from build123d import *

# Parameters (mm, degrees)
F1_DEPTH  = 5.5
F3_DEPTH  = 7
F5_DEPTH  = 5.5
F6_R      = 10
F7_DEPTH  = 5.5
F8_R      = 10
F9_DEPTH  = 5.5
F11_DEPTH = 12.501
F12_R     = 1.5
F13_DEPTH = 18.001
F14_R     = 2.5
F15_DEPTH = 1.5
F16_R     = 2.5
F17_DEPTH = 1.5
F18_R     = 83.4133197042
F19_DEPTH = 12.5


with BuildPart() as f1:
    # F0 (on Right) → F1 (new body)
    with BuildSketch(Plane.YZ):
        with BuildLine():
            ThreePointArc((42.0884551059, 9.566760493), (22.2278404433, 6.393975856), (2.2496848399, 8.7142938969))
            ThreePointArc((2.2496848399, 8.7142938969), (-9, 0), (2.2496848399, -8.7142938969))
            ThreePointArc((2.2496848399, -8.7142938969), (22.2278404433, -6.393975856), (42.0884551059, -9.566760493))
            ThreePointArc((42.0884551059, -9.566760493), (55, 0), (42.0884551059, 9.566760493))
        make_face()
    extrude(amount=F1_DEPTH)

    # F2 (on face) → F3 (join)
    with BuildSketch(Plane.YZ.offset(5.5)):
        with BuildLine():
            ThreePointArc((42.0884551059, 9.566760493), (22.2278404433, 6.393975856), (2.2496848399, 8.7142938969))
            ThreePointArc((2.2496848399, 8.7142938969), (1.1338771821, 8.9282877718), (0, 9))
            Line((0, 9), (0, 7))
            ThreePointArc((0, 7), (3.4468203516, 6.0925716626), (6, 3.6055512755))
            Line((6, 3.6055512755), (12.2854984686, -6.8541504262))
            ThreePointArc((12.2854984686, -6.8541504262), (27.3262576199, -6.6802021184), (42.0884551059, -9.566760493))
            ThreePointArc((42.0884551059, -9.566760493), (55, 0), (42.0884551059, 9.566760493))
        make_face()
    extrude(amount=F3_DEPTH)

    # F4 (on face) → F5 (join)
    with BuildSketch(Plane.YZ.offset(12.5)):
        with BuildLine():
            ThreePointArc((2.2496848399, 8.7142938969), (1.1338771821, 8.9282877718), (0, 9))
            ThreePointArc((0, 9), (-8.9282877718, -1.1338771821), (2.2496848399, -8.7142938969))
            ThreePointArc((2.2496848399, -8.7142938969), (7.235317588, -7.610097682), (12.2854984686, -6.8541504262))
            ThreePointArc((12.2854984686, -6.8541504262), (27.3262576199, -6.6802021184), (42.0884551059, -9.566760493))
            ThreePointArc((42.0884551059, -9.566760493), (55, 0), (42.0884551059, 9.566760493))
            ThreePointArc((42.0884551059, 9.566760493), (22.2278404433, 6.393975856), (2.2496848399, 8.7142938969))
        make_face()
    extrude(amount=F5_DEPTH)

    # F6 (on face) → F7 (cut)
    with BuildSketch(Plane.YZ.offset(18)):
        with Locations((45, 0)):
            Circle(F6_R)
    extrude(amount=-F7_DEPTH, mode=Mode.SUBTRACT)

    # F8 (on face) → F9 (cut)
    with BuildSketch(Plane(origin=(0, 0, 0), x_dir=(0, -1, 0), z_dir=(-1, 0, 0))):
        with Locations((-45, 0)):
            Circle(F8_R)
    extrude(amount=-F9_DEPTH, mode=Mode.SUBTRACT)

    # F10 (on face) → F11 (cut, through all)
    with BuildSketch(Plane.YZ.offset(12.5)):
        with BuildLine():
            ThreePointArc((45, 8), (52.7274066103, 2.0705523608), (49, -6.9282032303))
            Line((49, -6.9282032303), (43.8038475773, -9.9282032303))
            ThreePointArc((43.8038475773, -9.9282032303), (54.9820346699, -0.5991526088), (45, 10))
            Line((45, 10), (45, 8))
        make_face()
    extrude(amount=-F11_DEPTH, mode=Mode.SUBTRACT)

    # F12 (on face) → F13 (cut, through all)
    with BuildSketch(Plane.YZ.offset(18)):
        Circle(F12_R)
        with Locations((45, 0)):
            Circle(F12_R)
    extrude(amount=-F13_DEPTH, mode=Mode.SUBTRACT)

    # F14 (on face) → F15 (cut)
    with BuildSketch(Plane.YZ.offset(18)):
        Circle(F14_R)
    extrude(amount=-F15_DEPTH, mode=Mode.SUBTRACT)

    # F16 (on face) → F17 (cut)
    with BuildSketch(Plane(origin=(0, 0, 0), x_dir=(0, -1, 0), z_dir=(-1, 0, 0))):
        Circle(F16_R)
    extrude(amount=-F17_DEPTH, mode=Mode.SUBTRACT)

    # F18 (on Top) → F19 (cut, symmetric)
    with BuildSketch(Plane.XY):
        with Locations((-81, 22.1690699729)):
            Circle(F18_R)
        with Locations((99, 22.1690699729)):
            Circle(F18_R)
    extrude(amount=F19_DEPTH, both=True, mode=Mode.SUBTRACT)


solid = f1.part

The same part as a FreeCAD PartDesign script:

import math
import FreeCAD as App
import Part
import Sketcher
Q = App.Units.Quantity

doc = App.newDocument("Part")
body = doc.addObject("PartDesign::Body", "Body")

sketch1 = body.newObject("Sketcher::SketchObject", "Sketch")
sketch1.AttachmentSupport = (doc.getObject("YZ_Plane"), [""])
sketch1.MapMode = "FlatFace"
sketch1.addGeometry(Part.ArcOfCircle(Part.Circle(App.Vector(21, 80, 0), App.Vector(0, 0, 1), 74), math.radians(-104), math.radians(-73)), False)
sketch1.addGeometry(Part.ArcOfCircle(Part.Circle(App.Vector(0, 0, 0), App.Vector(0, 0, 1), 9), math.radians(76), math.radians(284)), False)
sketch1.addGeometry(Part.ArcOfCircle(Part.Circle(App.Vector(21, -80, 0), App.Vector(0, 0, 1), 74), math.radians(73), math.radians(104)), False)
sketch1.addGeometry(Part.ArcOfCircle(Part.Circle(App.Vector(45, 0, 0), App.Vector(0, 0, 1), 10), math.radians(-107), math.radians(107)), False)
sketch1.addConstraint(Sketcher.Constraint("Tangent", 0, 1, 1, 1))
sketch1.addConstraint(Sketcher.Constraint("Tangent", 1, 2, 2, 2))
sketch1.addConstraint(Sketcher.Constraint("Tangent", 2, 1, 3, 1))
sketch1.addConstraint(Sketcher.Constraint("Tangent", 3, 2, 0, 2))
sketch1.addConstraint(Sketcher.Constraint("Coincident", 1, 3, -1, 1))
sketch1.addConstraint(Sketcher.Constraint("Equal", 0, 2))
sketch1.addConstraint(Sketcher.Constraint("PointOnObject", 3, 3, -1))
sketch1.addConstraint(Sketcher.Constraint("Radius", 1, Q("9 mm")))
sketch1.addConstraint(Sketcher.Constraint("Radius", 3, Q("10 mm")))
sketch1.addConstraint(Sketcher.Constraint("DistanceY", -1, 1, 0, 3, Q("80 mm")))
sketch1.addConstraint(Sketcher.Constraint("DistanceX", -1, 1, 3, 3, Q("45 mm")))
pad1 = body.newObject("PartDesign::Pad", "Pad")
pad1.Profile = sketch1
pad1.Length = 5.5

sketch2 = body.newObject("Sketcher::SketchObject", "Sketch001")
sketch2.AttachmentSupport = (doc.getObject("YZ_Plane"), [""])
sketch2.MapMode = "FlatFace"
sketch2.AttachmentOffset = App.Placement(App.Vector(0, 0, 5.5), App.Rotation())
sketch2.addGeometry(Part.ArcOfCircle(Part.Circle(App.Vector(20.7, 80, 0), App.Vector(0, 0, 1), 73.6), math.radians(-104), math.radians(-73)), False)
sketch2.addGeometry(Part.ArcOfCircle(Part.Circle(App.Vector(0, 0, 0), App.Vector(0, 0, 1), 9), math.radians(75.52), math.radians(90)), False)
sketch2.addGeometry(Part.LineSegment(App.Vector(0, 9, 0), App.Vector(0, 7, 0)), False)
sketch2.addGeometry(Part.ArcOfCircle(Part.Circle(App.Vector(0, 0, 0), App.Vector(0, 0, 1), 7), math.radians(31), math.radians(90)), False)
sketch2.addGeometry(Part.LineSegment(App.Vector(6, 3.6, 0), App.Vector(12.3, -6.9, 0)), False)
sketch2.addGeometry(Part.ArcOfCircle(Part.Circle(App.Vector(20.7, -80, 0), App.Vector(0, 0, 1), 73.6), math.radians(73), math.radians(97)), False)
sketch2.addGeometry(Part.ArcOfCircle(Part.Circle(App.Vector(45, 0, 0), App.Vector(0, 0, 1), 10), math.radians(-107), math.radians(107)), False)
sketch2.addConstraint(Sketcher.Constraint("Tangent", 0, 1, 1, 1))
sketch2.addConstraint(Sketcher.Constraint("Coincident", 1, 2, 2, 1))
sketch2.addConstraint(Sketcher.Constraint("Coincident", 2, 2, 3, 2))
sketch2.addConstraint(Sketcher.Constraint("Tangent", 3, 1, 4, 1))
sketch2.addConstraint(Sketcher.Constraint("Coincident", 4, 2, 5, 2))
sketch2.addConstraint(Sketcher.Constraint("Tangent", 5, 1, 6, 1))
sketch2.addConstraint(Sketcher.Constraint("Tangent", 6, 2, 0, 2))
sketch2.addConstraint(Sketcher.Constraint("Vertical", 2))
sketch2.addConstraint(Sketcher.Constraint("Coincident", 1, 3, -1, 1))
sketch2.addConstraint(Sketcher.Constraint("Coincident", 3, 3, -1, 1))
sketch2.addConstraint(Sketcher.Constraint("Equal", 0, 5))
sketch2.addConstraint(Sketcher.Constraint("Symmetric", 0, 3, 5, 3, -1))
sketch2.addConstraint(Sketcher.Constraint("PointOnObject", 1, 2, -2))
sketch2.addConstraint(Sketcher.Constraint("Radius", 1, Q("9 mm")))
sketch2.addConstraint(Sketcher.Constraint("Radius", 3, Q("7 mm")))
sketch2.addConstraint(Sketcher.Constraint("Radius", 6, Q("10 mm")))
sketch2.addConstraint(Sketcher.Constraint("DistanceY", -1, 1, 0, 3, Q("80 mm")))
sketch2.addConstraint(Sketcher.Constraint("DistanceX", -1, 1, 6, 3, Q("45 mm")))
sketch2.addConstraint(Sketcher.Constraint("DistanceX", -1, 1, 3, 1, Q("6 mm")))
pad2 = body.newObject("PartDesign::Pad", "Pad001")
pad2.Profile = sketch2
pad2.Length = 7

sketch3 = body.newObject("Sketcher::SketchObject", "Sketch002")
sketch3.AttachmentSupport = (doc.getObject("YZ_Plane"), [""])
sketch3.MapMode = "FlatFace"
sketch3.AttachmentOffset = App.Placement(App.Vector(0, 0, 12.5), App.Rotation())
sketch3.addGeometry(Part.ArcOfCircle(Part.Circle(App.Vector(0, 0, 0), App.Vector(0, 0, 1), 9), math.radians(75.52), math.radians(90)), False)
sketch3.addGeometry(Part.ArcOfCircle(Part.Circle(App.Vector(0, 0, 0), App.Vector(0, 0, 1), 9), math.radians(90), math.radians(284)), False)
sketch3.addGeometry(Part.ArcOfCircle(Part.Circle(App.Vector(20.7, -80, 0), App.Vector(0, 0, 1), 73.6), math.radians(96.53), math.radians(104.48)), False)
sketch3.addGeometry(Part.ArcOfCircle(Part.Circle(App.Vector(20.7, -80, 0), App.Vector(0, 0, 1), 73.6), math.radians(73), math.radians(97)), False)
sketch3.addGeometry(Part.ArcOfCircle(Part.Circle(App.Vector(45, 0, 0), App.Vector(0, 0, 1), 10), math.radians(-107), math.radians(107)), False)
sketch3.addGeometry(Part.ArcOfCircle(Part.Circle(App.Vector(20.7, 80, 0), App.Vector(0, 0, 1), 73.6), math.radians(-104), math.radians(-73)), False)
sketch3.addConstraint(Sketcher.Constraint("Tangent", 0, 2, 1, 1))
sketch3.addConstraint(Sketcher.Constraint("Tangent", 1, 2, 2, 2))
sketch3.addConstraint(Sketcher.Constraint("Tangent", 2, 1, 3, 2))
sketch3.addConstraint(Sketcher.Constraint("Tangent", 3, 1, 4, 1))
sketch3.addConstraint(Sketcher.Constraint("Tangent", 4, 2, 5, 2))
sketch3.addConstraint(Sketcher.Constraint("Tangent", 5, 1, 0, 1))
sketch3.addConstraint(Sketcher.Constraint("Coincident", 0, 3, -1, 1))
sketch3.addConstraint(Sketcher.Constraint("Equal", 0, 1))
sketch3.addConstraint(Sketcher.Constraint("Equal", 2, 3))
sketch3.addConstraint(Sketcher.Constraint("Equal", 3, 5))
sketch3.addConstraint(Sketcher.Constraint("PointOnObject", 4, 3, -1))
sketch3.addConstraint(Sketcher.Constraint("PointOnObject", 0, 2, -2))
sketch3.addConstraint(Sketcher.Constraint("Radius", 0, Q("9 mm")))
sketch3.addConstraint(Sketcher.Constraint("Radius", 4, Q("10 mm")))
sketch3.addConstraint(Sketcher.Constraint("DistanceY", 2, 3, -1, 1, Q("80 mm")))
sketch3.addConstraint(Sketcher.Constraint("DistanceX", -1, 1, 4, 3, Q("45 mm")))
sketch3.addConstraint(Sketcher.Constraint("DistanceX", -1, 1, 2, 1, Q("12.285498 mm")))
pad3 = body.newObject("PartDesign::Pad", "Pad002")
pad3.Profile = sketch3
pad3.Length = 5.5

sketch4 = body.newObject("Sketcher::SketchObject", "Sketch003")
sketch4.AttachmentSupport = (doc.getObject("YZ_Plane"), [""])
sketch4.MapMode = "FlatFace"
sketch4.AttachmentOffset = App.Placement(App.Vector(0, 0, 18), App.Rotation())
sketch4.addGeometry(Part.Circle(App.Vector(45, 0, 0), App.Vector(0, 0, 1), 10), False)
sketch4.addConstraint(Sketcher.Constraint("PointOnObject", 0, 3, -1))
sketch4.addConstraint(Sketcher.Constraint("Diameter", 0, Q("20 mm")))
sketch4.addConstraint(Sketcher.Constraint("DistanceX", -1, 1, 0, 3, Q("45 mm")))
pocket1 = body.newObject("PartDesign::Pocket", "Pocket")
pocket1.Profile = sketch4
pocket1.Length = 5.5

sketch5 = body.newObject("Sketcher::SketchObject", "Sketch004")
sketch5.AttachmentSupport = (doc.getObject("YZ_Plane"), [""])
sketch5.MapMode = "FlatFace"
sketch5.addGeometry(Part.Circle(App.Vector(45, 0, 0), App.Vector(0, 0, 1), 10), False)
sketch5.addConstraint(Sketcher.Constraint("PointOnObject", 0, 3, -1))
sketch5.addConstraint(Sketcher.Constraint("Diameter", 0, Q("20 mm")))
sketch5.addConstraint(Sketcher.Constraint("DistanceX", -1, 1, 0, 3, Q("45 mm")))
pocket2 = body.newObject("PartDesign::Pocket", "Pocket001")
pocket2.Profile = sketch5
pocket2.Length = 5.5
pocket2.Reversed = True

sketch6 = body.newObject("Sketcher::SketchObject", "Sketch005")
sketch6.AttachmentSupport = (doc.getObject("YZ_Plane"), [""])
sketch6.MapMode = "FlatFace"
sketch6.AttachmentOffset = App.Placement(App.Vector(0, 0, 12.5), App.Rotation())
sketch6.addGeometry(Part.ArcOfCircle(Part.Circle(App.Vector(45, 0, 0), App.Vector(0, 0, 1), 8), math.radians(-60), math.radians(90)), False)
sketch6.addGeometry(Part.LineSegment(App.Vector(49, -6.9, 0), App.Vector(43.8, -9.9, 0)), False)
sketch6.addGeometry(Part.ArcOfCircle(Part.Circle(App.Vector(45, 0, 0), App.Vector(0, 0, 1), 10), math.radians(-97), math.radians(90)), False)
sketch6.addGeometry(Part.LineSegment(App.Vector(45, 10, 0), App.Vector(45, 8, 0)), False)
sketch6.addConstraint(Sketcher.Constraint("Tangent", 0, 1, 1, 1))
sketch6.addConstraint(Sketcher.Constraint("Coincident", 1, 2, 2, 1))
sketch6.addConstraint(Sketcher.Constraint("Coincident", 2, 2, 3, 1))
sketch6.addConstraint(Sketcher.Constraint("Coincident", 3, 2, 0, 2))
sketch6.addConstraint(Sketcher.Constraint("Vertical", 3))
sketch6.addConstraint(Sketcher.Constraint("Coincident", 2, 3, 0, 3))
sketch6.addConstraint(Sketcher.Constraint("PointOnObject", 0, 3, -1))
sketch6.addConstraint(Sketcher.Constraint("Vertical", 0, 3, 2, 2))
sketch6.addConstraint(Sketcher.Constraint("Radius", 0, Q("8 mm")))
sketch6.addConstraint(Sketcher.Constraint("Radius", 2, Q("10 mm")))
sketch6.addConstraint(Sketcher.Constraint("Angle", 1, Q("-150 deg")))
sketch6.addConstraint(Sketcher.Constraint("DistanceX", -1, 1, 0, 3, Q("45 mm")))
pocket3 = body.newObject("PartDesign::Pocket", "Pocket002")
pocket3.Profile = sketch6
pocket3.Type = "ThroughAll"

sketch7 = body.newObject("Sketcher::SketchObject", "Sketch006")
sketch7.AttachmentSupport = (doc.getObject("YZ_Plane"), [""])
sketch7.MapMode = "FlatFace"
sketch7.AttachmentOffset = App.Placement(App.Vector(0, 0, 18), App.Rotation())
sketch7.addGeometry(Part.Circle(App.Vector(0, 0, 0), App.Vector(0, 0, 1), 1.5), False)
sketch7.addGeometry(Part.Circle(App.Vector(45, 0, 0), App.Vector(0, 0, 1), 1.5), False)
sketch7.addConstraint(Sketcher.Constraint("Coincident", 0, 3, -1, 1))
sketch7.addConstraint(Sketcher.Constraint("Equal", 0, 1))
sketch7.addConstraint(Sketcher.Constraint("PointOnObject", 1, 3, -1))
sketch7.addConstraint(Sketcher.Constraint("Diameter", 0, Q("3 mm")))
sketch7.addConstraint(Sketcher.Constraint("DistanceX", -1, 1, 1, 3, Q("45 mm")))
pocket4 = body.newObject("PartDesign::Pocket", "Pocket003")
pocket4.Profile = sketch7
pocket4.Type = "ThroughAll"

sketch8 = body.newObject("Sketcher::SketchObject", "Sketch007")
sketch8.AttachmentSupport = (doc.getObject("YZ_Plane"), [""])
sketch8.MapMode = "FlatFace"
sketch8.AttachmentOffset = App.Placement(App.Vector(0, 0, 18), App.Rotation())
sketch8.addGeometry(Part.Circle(App.Vector(0, 0, 0), App.Vector(0, 0, 1), 2.5), False)
sketch8.addConstraint(Sketcher.Constraint("Coincident", 0, 3, -1, 1))
sketch8.addConstraint(Sketcher.Constraint("Diameter", 0, Q("5 mm")))
pocket5 = body.newObject("PartDesign::Pocket", "Pocket004")
pocket5.Profile = sketch8
pocket5.Length = 1.5

sketch9 = body.newObject("Sketcher::SketchObject", "Sketch008")
sketch9.AttachmentSupport = (doc.getObject("YZ_Plane"), [""])
sketch9.MapMode = "FlatFace"
sketch9.addGeometry(Part.Circle(App.Vector(0, 0, 0), App.Vector(0, 0, 1), 2.5), False)
sketch9.addConstraint(Sketcher.Constraint("Coincident", 0, 3, -1, 1))
sketch9.addConstraint(Sketcher.Constraint("Diameter", 0, Q("5 mm")))
pocket6 = body.newObject("PartDesign::Pocket", "Pocket005")
pocket6.Profile = sketch9
pocket6.Length = 1.5
pocket6.Reversed = True

sketch10 = body.newObject("Sketcher::SketchObject", "Sketch009")
sketch10.AttachmentSupport = (doc.getObject("XY_Plane"), [""])
sketch10.MapMode = "FlatFace"
sketch10.addGeometry(Part.Circle(App.Vector(-81, 22, 0), App.Vector(0, 0, 1), 83), False)
sketch10.addGeometry(Part.Circle(App.Vector(99, 22, 0), App.Vector(0, 0, 1), 83), False)
sketch10.addConstraint(Sketcher.Constraint("Equal", 0, 1))
sketch10.addConstraint(Sketcher.Constraint("Horizontal", 0, 3, 1, 3))
sketch10.addConstraint(Sketcher.Constraint("DistanceX", 0, 3, -1, 1, Q("81 mm")))
sketch10.addConstraint(Sketcher.Constraint("DistanceX", -1, 1, 1, 3, Q("99 mm")))
sketch10.addConstraint(Sketcher.Constraint("Diameter", 0, Q("166.826639 mm")))
sketch10.addConstraint(Sketcher.Constraint("DistanceY", -1, 1, 0, 3, Q("22.16907 mm")))
pocket7 = body.newObject("PartDesign::Pocket", "Pocket006")
pocket7.Profile = sketch10
pocket7.Length = 25
pocket7.Midplane = True

doc.recompute()
